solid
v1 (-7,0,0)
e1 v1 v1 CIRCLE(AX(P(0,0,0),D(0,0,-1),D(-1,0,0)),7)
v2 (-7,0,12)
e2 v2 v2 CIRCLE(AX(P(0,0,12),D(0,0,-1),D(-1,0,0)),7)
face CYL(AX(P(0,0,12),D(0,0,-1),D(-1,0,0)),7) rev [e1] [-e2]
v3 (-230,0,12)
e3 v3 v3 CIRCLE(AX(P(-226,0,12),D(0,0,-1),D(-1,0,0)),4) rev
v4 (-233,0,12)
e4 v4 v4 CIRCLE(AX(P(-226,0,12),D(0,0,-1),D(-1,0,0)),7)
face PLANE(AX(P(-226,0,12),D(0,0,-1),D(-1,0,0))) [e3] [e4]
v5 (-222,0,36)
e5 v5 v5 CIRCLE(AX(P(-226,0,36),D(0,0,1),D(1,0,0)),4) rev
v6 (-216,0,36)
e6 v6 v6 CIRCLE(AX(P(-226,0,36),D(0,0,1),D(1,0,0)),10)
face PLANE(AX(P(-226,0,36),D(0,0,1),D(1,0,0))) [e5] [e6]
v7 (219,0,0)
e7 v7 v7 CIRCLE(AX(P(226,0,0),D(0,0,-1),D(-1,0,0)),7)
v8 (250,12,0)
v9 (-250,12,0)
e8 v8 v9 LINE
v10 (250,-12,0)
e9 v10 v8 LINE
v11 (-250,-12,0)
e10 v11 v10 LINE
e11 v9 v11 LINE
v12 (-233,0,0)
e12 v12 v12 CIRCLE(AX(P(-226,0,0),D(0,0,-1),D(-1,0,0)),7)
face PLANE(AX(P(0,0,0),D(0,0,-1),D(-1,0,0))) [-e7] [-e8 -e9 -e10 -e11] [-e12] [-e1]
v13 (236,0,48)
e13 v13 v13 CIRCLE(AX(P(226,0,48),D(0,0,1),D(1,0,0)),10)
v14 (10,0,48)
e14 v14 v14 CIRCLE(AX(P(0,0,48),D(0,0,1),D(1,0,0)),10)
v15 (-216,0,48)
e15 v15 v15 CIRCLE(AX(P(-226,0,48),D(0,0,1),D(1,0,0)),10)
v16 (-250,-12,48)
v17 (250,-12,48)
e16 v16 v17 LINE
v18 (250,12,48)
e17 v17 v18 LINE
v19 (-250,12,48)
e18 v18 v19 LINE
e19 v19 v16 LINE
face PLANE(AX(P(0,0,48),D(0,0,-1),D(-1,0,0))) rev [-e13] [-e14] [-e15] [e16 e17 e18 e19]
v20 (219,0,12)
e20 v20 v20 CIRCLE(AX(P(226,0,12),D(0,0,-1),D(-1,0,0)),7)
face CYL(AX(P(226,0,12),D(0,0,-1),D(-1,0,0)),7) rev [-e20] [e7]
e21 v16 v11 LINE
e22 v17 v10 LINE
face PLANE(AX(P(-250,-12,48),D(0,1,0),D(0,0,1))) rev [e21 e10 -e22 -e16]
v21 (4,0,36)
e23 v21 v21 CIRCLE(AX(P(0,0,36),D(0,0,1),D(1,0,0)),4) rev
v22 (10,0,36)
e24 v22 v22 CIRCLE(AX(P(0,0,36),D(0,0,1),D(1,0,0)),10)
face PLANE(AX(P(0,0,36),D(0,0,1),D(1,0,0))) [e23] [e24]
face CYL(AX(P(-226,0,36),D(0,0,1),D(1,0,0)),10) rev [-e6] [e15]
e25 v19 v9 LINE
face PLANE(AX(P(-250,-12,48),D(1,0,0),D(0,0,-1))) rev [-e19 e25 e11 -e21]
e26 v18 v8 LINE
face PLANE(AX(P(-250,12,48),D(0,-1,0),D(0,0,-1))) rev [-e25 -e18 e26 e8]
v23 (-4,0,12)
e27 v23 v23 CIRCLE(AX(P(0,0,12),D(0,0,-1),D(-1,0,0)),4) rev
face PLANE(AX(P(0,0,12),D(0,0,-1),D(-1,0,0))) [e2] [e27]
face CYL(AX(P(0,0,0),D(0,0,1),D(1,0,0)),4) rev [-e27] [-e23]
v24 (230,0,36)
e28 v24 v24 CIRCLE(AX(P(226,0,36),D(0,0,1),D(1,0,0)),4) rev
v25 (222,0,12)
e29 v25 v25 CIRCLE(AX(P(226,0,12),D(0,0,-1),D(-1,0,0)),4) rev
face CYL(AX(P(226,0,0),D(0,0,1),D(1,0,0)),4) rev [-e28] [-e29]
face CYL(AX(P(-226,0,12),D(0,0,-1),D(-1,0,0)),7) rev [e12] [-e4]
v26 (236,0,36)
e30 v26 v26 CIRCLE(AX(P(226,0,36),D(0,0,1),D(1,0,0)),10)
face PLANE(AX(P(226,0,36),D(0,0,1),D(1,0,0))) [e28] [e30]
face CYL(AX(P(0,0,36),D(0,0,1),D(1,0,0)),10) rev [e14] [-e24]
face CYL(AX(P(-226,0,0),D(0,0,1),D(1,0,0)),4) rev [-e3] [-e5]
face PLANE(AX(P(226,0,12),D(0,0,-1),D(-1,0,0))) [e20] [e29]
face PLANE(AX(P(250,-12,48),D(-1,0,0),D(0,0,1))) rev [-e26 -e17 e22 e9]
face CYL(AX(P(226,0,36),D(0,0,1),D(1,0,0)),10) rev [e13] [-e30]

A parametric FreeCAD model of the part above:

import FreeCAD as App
import Part
import Sketcher

V = App.Vector


def add_polygon(sketch, points):
    """Adds a closed chain of lines whose ends are joined by coincident constraints."""
    first, n = sketch.GeometryCount, len(points)
    for a, b in zip(points, points[1:] + points[:1]):
        sketch.addGeometry(Part.LineSegment(App.Vector(*a, 0), App.Vector(*b, 0)), False)
    for i in range(n):
        sketch.addConstraint(Sketcher.Constraint("Coincident", first + i, 2, first + (i + 1) % n, 1))

doc = App.newDocument("Part")
body = doc.addObject("PartDesign::Body", "Body")

sketch1 = body.newObject("Sketcher::SketchObject", "Sketch")
sketch1.AttachmentSupport = (doc.getObject("XY_Plane"), [""])
sketch1.MapMode = "FlatFace"
add_polygon(sketch1, [(-250, 12), (-250, -12), (250, -12), (250, 12)])
sketch1.addConstraint([
    Sketcher.Constraint("Vertical", 0),
    Sketcher.Constraint("Horizontal", 1),
    Sketcher.Constraint("Vertical", 2),
    Sketcher.Constraint("Horizontal", 3),
    Sketcher.Constraint("Symmetric", 0, 2, 2, 2, -1, 1),
    Sketcher.Constraint("DistanceX", 1, 1, 1, 2, 500.0),
    Sketcher.Constraint("DistanceY", 0, 2, 0, 1, 24.0),
])
pad1 = body.newObject("PartDesign::Pad", "Pad")
pad1.Profile = sketch1
pad1.Length = 48

sketch2 = body.newObject("Sketcher::SketchObject", "Sketch001")
sketch2.AttachmentSupport = (doc.getObject("XY_Plane"), [""])
sketch2.MapMode = "FlatFace"
sketch2.AttachmentOffset = App.Placement(V(0, 0, 48), App.Rotation())
sketch2.addGeometry([
    Part.Circle(V(-226, 0, 0), V(0, 0, 1), 4),
    Part.Circle(V(0, 0, 0), V(0, 0, 1), 4),
    Part.Circle(V(226, 0, 0), V(0, 0, 1), 4),
], False)
sketch2.addConstraint([
    Sketcher.Constraint("Coincident", 1, 3, -1, 1),
    Sketcher.Constraint("Equal", 0, 1),
    Sketcher.Constraint("Equal", 1, 2),
    Sketcher.Constraint("Symmetric", 0, 3, 2, 3, -1, 1),
    Sketcher.Constraint("PointOnObject", 0, 3, -1),
    Sketcher.Constraint("Diameter", 0, 8.0),
    Sketcher.Constraint("DistanceX", 0, 3, -1, 1, 226.0),
])
pocket1 = body.newObject("PartDesign::Pocket", "Pocket")
pocket1.Profile = sketch2
pocket1.Type = "ThroughAll"

sketch3 = body.newObject("Sketcher::SketchObject", "Sketch002")
sketch3.AttachmentSupport = (doc.getObject("XY_Plane"), [""])
sketch3.MapMode = "FlatFace"
sketch3.AttachmentOffset = App.Placement(V(0, 0, 48), App.Rotation())
sketch3.addGeometry([
    Part.Circle(V(-226, 0, 0), V(0, 0, 1), 10),
    Part.Circle(V(0, 0, 0), V(0, 0, 1), 10),
    Part.Circle(V(226, 0, 0), V(0, 0, 1), 10),
], False)
sketch3.addConstraint([
    Sketcher.Constraint("Coincident", 1, 3, -1, 1),
    Sketcher.Constraint("Equal", 0, 1),
    Sketcher.Constraint("Equal", 1, 2),
    Sketcher.Constraint("Symmetric", 0, 3, 2, 3, -1, 1),
    Sketcher.Constraint("PointOnObject", 0, 3, -1),
    Sketcher.Constraint("Diameter", 0, 20.0),
    Sketcher.Constraint("DistanceX", 0, 3, -1, 1, 226.0),
])
pocket2 = body.newObject("PartDesign::Pocket", "Pocket001")
pocket2.Profile = sketch3
pocket2.Length = 12

sketch4 = body.newObject("Sketcher::SketchObject", "Sketch003")
sketch4.AttachmentSupport = (doc.getObject("XY_Plane"), [""])
sketch4.MapMode = "FlatFace"
sketch4.addGeometry([
    Part.Circle(V(226, 0, 0), V(0, 0, 1), 7),
    Part.Circle(V(0, 0, 0), V(0, 0, 1), 7),
    Part.Circle(V(-226, 0, 0), V(0, 0, 1), 7),
], False)
sketch4.addConstraint([
    Sketcher.Constraint("Coincident", 1, 3, -1, 1),
    Sketcher.Constraint("Equal", 0, 1),
    Sketcher.Constraint("Equal", 1, 2),
    Sketcher.Constraint("Symmetric", 0, 3, 2, 3, -1, 1),
    Sketcher.Constraint("PointOnObject", 0, 3, -1),
    Sketcher.Constraint("Diameter", 0, 14.0),
    Sketcher.Constraint("DistanceX", -1, 1, 0, 3, 226.0),
])
pocket3 = body.newObject("PartDesign::Pocket", "Pocket002")
pocket3.Profile = sketch4
pocket3.Length = 12
pocket3.Reversed = True

doc.recompute()
